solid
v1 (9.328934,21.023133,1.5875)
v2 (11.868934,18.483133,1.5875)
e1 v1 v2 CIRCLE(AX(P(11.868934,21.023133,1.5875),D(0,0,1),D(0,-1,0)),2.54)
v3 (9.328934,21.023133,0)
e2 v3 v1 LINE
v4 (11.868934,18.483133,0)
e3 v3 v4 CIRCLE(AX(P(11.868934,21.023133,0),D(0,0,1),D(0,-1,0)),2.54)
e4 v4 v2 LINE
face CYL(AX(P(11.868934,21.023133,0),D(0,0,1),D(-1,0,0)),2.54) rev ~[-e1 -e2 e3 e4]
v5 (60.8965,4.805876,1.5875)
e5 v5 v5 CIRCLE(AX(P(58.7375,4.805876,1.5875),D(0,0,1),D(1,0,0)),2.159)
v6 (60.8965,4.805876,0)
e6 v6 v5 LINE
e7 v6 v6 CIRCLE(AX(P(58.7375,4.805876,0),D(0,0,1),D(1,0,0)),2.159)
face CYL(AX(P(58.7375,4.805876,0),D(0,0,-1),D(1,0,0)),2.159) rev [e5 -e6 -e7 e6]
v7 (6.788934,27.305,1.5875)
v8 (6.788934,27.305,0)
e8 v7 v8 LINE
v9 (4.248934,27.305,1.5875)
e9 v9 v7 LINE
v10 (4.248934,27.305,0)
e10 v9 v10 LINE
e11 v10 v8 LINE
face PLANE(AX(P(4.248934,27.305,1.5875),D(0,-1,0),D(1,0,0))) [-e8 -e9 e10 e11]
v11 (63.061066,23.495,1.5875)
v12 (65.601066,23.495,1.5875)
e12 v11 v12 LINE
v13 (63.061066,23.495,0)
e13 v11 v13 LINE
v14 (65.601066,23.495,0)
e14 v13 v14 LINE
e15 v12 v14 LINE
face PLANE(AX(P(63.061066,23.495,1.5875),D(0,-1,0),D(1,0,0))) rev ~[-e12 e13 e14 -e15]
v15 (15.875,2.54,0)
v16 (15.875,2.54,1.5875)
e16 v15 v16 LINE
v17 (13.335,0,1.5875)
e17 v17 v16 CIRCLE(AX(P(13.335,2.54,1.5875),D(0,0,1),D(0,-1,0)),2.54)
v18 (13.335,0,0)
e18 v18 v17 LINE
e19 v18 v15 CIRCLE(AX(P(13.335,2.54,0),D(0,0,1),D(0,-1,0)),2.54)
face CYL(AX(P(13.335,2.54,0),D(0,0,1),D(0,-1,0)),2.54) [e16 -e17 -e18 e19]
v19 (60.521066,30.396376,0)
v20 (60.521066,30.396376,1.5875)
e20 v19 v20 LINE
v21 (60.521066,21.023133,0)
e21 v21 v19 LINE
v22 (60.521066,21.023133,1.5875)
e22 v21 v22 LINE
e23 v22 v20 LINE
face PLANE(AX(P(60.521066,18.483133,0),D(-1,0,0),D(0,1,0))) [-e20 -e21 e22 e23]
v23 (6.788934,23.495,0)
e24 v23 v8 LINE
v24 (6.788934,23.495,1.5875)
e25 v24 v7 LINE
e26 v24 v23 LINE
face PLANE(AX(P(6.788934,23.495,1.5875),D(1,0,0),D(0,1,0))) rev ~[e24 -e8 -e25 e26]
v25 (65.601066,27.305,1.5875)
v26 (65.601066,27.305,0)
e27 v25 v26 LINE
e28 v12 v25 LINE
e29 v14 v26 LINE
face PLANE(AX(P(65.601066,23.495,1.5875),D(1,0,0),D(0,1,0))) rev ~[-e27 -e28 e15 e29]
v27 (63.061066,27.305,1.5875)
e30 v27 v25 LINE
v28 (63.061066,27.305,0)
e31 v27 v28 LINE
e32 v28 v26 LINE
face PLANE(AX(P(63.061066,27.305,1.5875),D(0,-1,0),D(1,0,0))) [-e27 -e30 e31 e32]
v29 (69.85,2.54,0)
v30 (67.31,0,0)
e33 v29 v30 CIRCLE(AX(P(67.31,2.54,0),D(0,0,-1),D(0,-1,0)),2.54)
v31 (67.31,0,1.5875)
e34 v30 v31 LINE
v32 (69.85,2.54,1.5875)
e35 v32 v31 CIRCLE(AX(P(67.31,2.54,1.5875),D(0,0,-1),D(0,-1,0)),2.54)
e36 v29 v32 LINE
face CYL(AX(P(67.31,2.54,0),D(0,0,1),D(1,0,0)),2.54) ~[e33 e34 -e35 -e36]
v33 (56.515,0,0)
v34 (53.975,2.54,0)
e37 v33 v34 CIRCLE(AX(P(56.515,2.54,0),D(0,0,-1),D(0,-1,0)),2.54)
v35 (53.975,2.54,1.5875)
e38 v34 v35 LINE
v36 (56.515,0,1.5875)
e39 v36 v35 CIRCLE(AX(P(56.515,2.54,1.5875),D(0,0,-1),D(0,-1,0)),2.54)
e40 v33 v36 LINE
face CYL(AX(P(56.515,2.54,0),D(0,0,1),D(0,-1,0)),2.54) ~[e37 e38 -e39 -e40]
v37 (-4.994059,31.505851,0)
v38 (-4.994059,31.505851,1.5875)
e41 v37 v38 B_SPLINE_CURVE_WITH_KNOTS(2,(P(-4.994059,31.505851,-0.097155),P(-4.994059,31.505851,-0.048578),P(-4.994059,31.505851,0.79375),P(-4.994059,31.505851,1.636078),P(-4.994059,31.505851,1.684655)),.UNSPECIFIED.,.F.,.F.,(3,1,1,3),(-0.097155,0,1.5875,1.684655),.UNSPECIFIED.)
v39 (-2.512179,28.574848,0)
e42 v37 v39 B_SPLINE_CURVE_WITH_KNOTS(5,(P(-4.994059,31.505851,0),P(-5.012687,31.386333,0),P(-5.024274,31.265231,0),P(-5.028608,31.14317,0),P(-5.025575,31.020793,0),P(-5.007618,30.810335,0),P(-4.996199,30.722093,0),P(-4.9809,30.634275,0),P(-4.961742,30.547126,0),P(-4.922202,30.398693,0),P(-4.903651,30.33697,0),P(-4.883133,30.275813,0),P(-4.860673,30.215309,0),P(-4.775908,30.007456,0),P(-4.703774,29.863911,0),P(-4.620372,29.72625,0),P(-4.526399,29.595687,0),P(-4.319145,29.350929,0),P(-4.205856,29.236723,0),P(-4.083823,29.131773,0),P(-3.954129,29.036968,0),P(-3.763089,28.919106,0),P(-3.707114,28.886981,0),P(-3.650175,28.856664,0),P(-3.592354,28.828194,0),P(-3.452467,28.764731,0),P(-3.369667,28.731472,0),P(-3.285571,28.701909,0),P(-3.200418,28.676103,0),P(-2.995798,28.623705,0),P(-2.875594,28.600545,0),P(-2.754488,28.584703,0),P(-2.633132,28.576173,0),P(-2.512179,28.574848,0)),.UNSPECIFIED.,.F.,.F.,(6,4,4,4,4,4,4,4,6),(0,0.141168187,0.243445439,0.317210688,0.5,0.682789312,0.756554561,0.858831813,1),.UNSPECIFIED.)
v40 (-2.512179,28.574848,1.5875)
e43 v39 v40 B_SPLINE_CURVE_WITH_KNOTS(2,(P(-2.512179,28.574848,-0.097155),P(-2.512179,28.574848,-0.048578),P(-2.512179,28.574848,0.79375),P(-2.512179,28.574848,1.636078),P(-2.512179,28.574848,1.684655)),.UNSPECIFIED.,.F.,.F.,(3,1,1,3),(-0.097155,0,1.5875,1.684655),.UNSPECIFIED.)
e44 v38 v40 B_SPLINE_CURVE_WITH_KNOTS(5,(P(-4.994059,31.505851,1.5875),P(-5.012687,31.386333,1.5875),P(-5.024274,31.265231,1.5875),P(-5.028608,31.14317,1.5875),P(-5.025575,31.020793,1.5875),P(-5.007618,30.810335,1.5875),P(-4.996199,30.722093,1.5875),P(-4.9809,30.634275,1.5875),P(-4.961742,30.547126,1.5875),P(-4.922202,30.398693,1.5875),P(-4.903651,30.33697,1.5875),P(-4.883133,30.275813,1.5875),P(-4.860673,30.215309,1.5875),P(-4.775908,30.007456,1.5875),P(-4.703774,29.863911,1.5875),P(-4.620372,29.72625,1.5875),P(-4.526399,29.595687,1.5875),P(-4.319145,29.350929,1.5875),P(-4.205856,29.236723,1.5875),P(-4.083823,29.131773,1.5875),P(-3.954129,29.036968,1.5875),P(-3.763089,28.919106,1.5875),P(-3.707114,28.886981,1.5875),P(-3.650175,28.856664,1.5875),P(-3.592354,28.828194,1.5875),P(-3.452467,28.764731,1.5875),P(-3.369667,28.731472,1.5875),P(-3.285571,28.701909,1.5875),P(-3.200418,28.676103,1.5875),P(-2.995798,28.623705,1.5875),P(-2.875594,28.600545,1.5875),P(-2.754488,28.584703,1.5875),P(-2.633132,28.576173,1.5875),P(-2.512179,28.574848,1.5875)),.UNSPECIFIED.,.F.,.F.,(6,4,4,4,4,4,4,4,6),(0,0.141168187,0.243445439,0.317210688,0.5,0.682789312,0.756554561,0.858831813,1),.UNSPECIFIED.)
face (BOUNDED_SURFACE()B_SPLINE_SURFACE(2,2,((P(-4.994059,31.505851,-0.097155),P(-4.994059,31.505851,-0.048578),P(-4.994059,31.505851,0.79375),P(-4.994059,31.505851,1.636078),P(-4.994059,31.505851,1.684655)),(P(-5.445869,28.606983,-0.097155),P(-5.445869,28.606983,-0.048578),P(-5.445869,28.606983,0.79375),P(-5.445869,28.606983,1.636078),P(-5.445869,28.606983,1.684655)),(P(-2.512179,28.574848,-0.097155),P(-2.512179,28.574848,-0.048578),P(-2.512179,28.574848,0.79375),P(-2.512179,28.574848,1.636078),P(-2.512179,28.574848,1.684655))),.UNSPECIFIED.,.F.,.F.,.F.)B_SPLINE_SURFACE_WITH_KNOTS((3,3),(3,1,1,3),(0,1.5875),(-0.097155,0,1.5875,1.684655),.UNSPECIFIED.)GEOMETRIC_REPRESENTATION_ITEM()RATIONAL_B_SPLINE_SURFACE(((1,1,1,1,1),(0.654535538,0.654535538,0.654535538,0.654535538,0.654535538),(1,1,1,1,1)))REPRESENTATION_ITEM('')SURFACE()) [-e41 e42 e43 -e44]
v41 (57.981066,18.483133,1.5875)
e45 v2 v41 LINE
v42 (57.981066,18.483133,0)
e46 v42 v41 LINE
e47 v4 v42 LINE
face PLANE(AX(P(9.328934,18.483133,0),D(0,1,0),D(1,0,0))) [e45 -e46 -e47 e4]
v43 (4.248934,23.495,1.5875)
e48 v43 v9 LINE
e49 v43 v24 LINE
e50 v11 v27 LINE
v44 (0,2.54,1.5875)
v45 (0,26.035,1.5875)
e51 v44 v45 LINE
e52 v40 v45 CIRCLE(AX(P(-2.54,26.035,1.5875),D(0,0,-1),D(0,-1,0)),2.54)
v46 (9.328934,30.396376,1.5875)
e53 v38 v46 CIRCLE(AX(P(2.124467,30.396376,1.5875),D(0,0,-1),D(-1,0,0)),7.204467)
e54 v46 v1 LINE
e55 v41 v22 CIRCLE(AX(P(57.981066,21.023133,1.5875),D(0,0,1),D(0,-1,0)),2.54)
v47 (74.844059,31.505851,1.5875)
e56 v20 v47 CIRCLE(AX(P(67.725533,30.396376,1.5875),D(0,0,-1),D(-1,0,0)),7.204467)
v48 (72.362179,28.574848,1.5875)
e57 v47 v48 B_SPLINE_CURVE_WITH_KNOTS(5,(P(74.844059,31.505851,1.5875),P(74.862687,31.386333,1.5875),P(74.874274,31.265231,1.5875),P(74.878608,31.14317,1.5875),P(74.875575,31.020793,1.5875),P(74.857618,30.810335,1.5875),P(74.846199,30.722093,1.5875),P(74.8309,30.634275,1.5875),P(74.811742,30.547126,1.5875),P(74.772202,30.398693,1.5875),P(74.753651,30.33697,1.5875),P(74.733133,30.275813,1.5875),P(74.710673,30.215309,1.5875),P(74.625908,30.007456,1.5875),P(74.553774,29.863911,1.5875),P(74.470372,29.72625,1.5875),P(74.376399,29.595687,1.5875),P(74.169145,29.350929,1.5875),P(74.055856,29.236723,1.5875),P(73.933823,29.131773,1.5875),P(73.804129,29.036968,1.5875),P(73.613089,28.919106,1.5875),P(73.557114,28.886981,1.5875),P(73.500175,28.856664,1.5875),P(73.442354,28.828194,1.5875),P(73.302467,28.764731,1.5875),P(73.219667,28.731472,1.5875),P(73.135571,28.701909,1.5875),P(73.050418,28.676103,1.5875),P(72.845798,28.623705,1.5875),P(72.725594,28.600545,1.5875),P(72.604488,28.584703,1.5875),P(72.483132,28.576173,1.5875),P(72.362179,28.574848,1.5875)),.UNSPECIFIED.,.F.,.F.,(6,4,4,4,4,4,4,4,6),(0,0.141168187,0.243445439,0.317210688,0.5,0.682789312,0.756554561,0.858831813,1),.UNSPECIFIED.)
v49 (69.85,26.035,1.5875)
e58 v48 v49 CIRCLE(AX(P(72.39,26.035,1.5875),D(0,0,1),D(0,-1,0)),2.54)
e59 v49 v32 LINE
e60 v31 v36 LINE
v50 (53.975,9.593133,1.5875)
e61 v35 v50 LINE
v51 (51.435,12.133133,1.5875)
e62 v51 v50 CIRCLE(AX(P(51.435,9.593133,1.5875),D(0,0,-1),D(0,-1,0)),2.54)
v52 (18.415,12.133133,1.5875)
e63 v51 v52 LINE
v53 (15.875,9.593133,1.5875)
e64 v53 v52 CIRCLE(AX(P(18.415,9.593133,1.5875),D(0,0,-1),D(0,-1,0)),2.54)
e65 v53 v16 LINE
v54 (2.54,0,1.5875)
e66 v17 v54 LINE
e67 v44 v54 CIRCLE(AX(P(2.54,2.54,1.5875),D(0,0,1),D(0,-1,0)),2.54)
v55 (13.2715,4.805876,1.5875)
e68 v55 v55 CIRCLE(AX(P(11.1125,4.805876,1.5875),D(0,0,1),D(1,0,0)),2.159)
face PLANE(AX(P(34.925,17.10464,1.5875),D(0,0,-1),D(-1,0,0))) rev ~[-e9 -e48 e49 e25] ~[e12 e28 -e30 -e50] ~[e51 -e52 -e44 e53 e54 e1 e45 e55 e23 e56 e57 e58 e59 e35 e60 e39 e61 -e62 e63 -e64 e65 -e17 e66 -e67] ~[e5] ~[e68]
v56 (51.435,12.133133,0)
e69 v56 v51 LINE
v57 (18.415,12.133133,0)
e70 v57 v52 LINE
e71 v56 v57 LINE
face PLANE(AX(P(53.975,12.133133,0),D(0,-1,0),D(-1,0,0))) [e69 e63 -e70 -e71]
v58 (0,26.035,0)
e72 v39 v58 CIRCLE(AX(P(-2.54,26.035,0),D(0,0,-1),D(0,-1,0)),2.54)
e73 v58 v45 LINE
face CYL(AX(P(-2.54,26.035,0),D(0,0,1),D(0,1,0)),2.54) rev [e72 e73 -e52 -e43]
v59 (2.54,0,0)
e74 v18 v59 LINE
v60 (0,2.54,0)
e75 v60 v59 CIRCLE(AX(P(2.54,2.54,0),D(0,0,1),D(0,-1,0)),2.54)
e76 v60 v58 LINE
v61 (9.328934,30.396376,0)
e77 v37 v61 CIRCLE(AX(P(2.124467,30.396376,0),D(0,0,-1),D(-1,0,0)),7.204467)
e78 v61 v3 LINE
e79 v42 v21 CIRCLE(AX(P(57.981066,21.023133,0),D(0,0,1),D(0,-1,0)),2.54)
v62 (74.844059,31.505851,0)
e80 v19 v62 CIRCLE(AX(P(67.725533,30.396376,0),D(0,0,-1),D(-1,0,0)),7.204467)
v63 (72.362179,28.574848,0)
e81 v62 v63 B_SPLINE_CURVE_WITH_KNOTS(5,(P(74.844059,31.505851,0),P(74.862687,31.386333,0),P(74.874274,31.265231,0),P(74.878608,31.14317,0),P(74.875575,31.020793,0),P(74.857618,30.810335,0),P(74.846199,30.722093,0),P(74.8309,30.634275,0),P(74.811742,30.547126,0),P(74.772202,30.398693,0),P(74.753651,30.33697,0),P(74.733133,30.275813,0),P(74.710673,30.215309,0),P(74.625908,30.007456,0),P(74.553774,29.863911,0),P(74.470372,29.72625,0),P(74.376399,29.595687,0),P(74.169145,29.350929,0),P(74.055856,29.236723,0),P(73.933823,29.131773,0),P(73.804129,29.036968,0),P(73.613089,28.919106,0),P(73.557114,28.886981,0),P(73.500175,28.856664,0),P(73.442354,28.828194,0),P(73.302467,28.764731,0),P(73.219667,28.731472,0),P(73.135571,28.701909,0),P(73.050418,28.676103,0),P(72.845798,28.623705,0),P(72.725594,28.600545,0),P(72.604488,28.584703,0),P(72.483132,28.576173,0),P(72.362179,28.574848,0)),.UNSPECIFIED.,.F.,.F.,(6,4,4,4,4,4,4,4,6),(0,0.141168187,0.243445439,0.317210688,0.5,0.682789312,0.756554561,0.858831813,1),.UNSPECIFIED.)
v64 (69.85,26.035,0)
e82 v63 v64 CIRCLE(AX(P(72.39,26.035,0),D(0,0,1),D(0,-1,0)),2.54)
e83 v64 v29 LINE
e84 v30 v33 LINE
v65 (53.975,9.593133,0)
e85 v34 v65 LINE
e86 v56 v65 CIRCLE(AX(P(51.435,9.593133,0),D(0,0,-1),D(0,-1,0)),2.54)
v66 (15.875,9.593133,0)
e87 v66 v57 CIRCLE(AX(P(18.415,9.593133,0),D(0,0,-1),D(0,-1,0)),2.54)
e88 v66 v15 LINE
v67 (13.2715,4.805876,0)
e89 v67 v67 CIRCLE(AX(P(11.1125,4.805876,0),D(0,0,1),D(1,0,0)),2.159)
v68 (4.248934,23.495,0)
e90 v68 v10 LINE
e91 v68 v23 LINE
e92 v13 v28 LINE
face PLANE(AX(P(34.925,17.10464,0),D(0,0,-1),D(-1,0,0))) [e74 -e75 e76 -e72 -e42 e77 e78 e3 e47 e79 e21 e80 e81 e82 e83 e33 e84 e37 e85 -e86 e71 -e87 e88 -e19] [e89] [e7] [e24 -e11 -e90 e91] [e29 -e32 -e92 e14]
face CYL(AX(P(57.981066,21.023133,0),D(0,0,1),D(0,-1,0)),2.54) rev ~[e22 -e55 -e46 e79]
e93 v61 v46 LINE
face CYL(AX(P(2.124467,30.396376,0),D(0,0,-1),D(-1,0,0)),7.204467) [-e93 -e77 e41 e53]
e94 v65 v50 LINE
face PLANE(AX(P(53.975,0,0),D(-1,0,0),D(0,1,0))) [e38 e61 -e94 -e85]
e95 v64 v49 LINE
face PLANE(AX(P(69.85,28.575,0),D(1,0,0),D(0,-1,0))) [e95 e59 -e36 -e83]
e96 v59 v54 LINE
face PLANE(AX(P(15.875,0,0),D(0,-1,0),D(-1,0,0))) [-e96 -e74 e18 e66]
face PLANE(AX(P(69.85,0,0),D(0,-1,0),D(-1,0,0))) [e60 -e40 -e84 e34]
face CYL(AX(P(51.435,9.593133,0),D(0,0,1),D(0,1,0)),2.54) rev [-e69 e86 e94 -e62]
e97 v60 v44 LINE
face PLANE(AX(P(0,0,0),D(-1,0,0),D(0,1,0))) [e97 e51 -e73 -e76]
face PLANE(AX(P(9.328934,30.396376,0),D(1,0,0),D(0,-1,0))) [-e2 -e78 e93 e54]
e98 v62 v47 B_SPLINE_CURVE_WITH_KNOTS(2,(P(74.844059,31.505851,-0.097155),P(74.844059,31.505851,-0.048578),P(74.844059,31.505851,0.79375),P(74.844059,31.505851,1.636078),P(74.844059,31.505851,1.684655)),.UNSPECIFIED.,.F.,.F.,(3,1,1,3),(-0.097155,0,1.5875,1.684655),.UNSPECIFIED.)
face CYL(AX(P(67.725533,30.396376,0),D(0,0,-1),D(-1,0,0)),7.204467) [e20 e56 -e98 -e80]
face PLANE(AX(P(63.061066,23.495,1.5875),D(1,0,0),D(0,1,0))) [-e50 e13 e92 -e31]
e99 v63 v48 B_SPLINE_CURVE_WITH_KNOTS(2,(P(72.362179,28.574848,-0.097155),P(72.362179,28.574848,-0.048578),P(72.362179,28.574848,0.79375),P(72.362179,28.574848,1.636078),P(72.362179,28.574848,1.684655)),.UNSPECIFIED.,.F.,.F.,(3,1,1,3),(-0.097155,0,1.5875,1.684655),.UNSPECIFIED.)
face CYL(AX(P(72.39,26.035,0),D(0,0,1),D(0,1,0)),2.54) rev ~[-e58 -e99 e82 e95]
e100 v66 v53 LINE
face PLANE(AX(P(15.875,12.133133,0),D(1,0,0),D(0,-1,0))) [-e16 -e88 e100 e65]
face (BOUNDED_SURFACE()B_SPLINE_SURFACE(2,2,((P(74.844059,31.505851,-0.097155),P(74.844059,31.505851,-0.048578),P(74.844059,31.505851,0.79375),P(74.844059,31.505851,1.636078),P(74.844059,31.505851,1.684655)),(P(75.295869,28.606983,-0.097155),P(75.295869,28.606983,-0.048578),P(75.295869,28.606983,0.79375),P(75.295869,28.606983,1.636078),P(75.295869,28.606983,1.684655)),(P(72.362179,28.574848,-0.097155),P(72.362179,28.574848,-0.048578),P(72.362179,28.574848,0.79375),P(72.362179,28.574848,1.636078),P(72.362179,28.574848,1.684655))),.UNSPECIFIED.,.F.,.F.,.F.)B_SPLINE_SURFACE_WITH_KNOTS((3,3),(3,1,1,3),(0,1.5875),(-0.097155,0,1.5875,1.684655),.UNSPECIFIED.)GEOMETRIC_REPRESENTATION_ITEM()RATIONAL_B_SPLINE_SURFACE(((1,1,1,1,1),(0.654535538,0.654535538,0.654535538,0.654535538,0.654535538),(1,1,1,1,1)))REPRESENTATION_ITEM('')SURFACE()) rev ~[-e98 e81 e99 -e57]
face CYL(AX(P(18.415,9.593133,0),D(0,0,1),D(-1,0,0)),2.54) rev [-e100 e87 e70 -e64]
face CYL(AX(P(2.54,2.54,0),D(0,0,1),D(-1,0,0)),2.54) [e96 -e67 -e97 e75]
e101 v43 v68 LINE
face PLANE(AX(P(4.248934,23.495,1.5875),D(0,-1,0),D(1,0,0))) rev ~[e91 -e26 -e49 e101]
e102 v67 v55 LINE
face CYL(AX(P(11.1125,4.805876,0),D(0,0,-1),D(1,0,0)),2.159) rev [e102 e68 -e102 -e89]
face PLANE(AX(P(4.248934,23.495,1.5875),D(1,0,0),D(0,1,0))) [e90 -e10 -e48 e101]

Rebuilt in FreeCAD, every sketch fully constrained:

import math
import FreeCAD as App
import Part
import Sketcher
Q = App.Units.Quantity


def edges_at(feature, points):
    """Names of the edges that pass closest to the given points."""
    edges = feature.Shape.Edges
    near = lambda p: min(range(len(edges)), key=lambda i: edges[i].distToShape(Part.Vertex(*p))[0])
    return sorted({f"Edge{near(p) + 1}" for p in points})

doc = App.newDocument("Part")
body = doc.addObject("PartDesign::Body", "Body")

sketch1 = body.newObject("Sketcher::SketchObject", "Sketch")
sketch1.AttachmentSupport = (doc.getObject("XY_Plane"), [""])
sketch1.MapMode = "FlatFace"
sketch1.addGeometry([
    Part.LineSegment(App.Vector(9.3, 18.5, 0), App.Vector(9.3, 30.4, 0)),
    Part.ArcOfCircle(Part.Circle(App.Vector(2.1, 30.4, 0), App.Vector(0, 0, 1), 7.2), math.radians(0), math.radians(180)),
    Part.LineSegment(App.Vector(-5.1, 30.4, 0), App.Vector(-5.1, 28.6, 0)),
    Part.LineSegment(App.Vector(-5.1, 28.6, 0), App.Vector(0, 28.6, 0)),
    Part.LineSegment(App.Vector(0, 28.6, 0), App.Vector(0, 0, 0)),
    Part.LineSegment(App.Vector(0, 0, 0), App.Vector(15.9, 0, 0)),
    Part.LineSegment(App.Vector(15.9, 0, 0), App.Vector(15.9, 12.1, 0)),
    Part.LineSegment(App.Vector(15.9, 12.1, 0), App.Vector(54, 12.1, 0)),
    Part.LineSegment(App.Vector(54, 12.1, 0), App.Vector(54, 0, 0)),
    Part.LineSegment(App.Vector(54, 0, 0), App.Vector(69.8, 0, 0)),
    Part.LineSegment(App.Vector(69.8, 0, 0), App.Vector(69.8, 28.6, 0)),
    Part.LineSegment(App.Vector(69.8, 28.6, 0), App.Vector(74.9, 28.6, 0)),
    Part.LineSegment(App.Vector(74.9, 28.6, 0), App.Vector(74.9, 30.4, 0)),
    Part.ArcOfCircle(Part.Circle(App.Vector(67.7, 30.4, 0), App.Vector(0, 0, 1), 7.2), math.radians(0), math.radians(180)),
    Part.LineSegment(App.Vector(60.5, 30.4, 0), App.Vector(60.5, 18.5, 0)),
    Part.LineSegment(App.Vector(60.5, 18.5, 0), App.Vector(9.3, 18.5, 0)),
    Part.Circle(App.Vector(58.7, 4.8, 0), App.Vector(0, 0, 1), 2.2),
    Part.Circle(App.Vector(11.1, 4.8, 0), App.Vector(0, 0, 1), 2.2),
], False)
sketch1.addConstraint([
    Sketcher.Constraint("Tangent", 0, 2, 1, 1),
    Sketcher.Constraint("Tangent", 1, 2, 2, 1),
    Sketcher.Constraint("Coincident", 2, 2, 3, 1),
    Sketcher.Constraint("Coincident", 3, 2, 4, 1),
    Sketcher.Constraint("Coincident", 4, 2, 5, 1),
    Sketcher.Constraint("Coincident", 5, 2, 6, 1),
    Sketcher.Constraint("Coincident", 6, 2, 7, 1),
    Sketcher.Constraint("Coincident", 7, 2, 8, 1),
    Sketcher.Constraint("Coincident", 8, 2, 9, 1),
    Sketcher.Constraint("Coincident", 9, 2, 10, 1),
    Sketcher.Constraint("Coincident", 10, 2, 11, 1),
    Sketcher.Constraint("Coincident", 11, 2, 12, 1),
    Sketcher.Constraint("Tangent", 12, 2, 13, 1),
    Sketcher.Constraint("Tangent", 13, 2, 14, 1),
    Sketcher.Constraint("Coincident", 14, 2, 15, 1),
    Sketcher.Constraint("Coincident", 15, 2, 0, 1),
    Sketcher.Constraint("Vertical", 0),
    Sketcher.Constraint("Vertical", 2),
    Sketcher.Constraint("Horizontal", 3),
    Sketcher.Constraint("Vertical", 4),
    Sketcher.Constraint("Horizontal", 5),
    Sketcher.Constraint("Vertical", 6),
    Sketcher.Constraint("Horizontal", 7),
    Sketcher.Constraint("Vertical", 8),
    Sketcher.Constraint("Horizontal", 9),
    Sketcher.Constraint("Vertical", 10),
    Sketcher.Constraint("Horizontal", 11),
    Sketcher.Constraint("Vertical", 12),
    Sketcher.Constraint("Vertical", 14),
    Sketcher.Constraint("Horizontal", 15),
    Sketcher.Constraint("Coincident", 4, 2, -1, 1),
    Sketcher.Constraint("Equal", 1, 13),
    Sketcher.Constraint("Equal", 16, 17),
    Sketcher.Constraint("PointOnObject", 8, 2, -1),
    Sketcher.Constraint("Horizontal", 1, 3, 13, 3),
    Sketcher.Constraint("Horizontal", 16, 3, 17, 3),
    Sketcher.Constraint("Horizontal", 3, 2, 10, 2),
    Sketcher.Constraint("Equal", 5, 9),
    Sketcher.Constraint("Equal", 3, 11),
    Sketcher.Constraint("Diameter", 16, Q("0.17 in")),
    Sketcher.Constraint("DistanceX", 3, 1, 3, 2, Q("0.2 in")),
    Sketcher.Constraint("DistanceX", 7, 1, 7, 2, Q("1.5 in")),
    Sketcher.Constraint("DistanceX", 5, 1, 5, 2, Q("0.625 in")),
    Sketcher.Constraint("DistanceY", 4, 2, 4, 1, Q("1.125 in")),
    Sketcher.Constraint("DistanceY", 7, 2, 14, 2, Q("0.25 in")),
    Sketcher.Constraint("DistanceX", -1, 1, 16, 3, Q("2.3125 in")),
    Sketcher.Constraint("DistanceX", -1, 1, 17, 3, Q("0.4375 in")),
    Sketcher.Constraint("Radius", 1, 7.204467),
    Sketcher.Constraint("DistanceY", 16, 3, 13, 3, Q("1.0075 in")),
    Sketcher.Constraint("DistanceY", 0, 1, 0, 2, 11.913243),
    Sketcher.Constraint("DistanceY", 2, 2, 2, 1, 1.821376),
])
pad1 = body.newObject("PartDesign::Pad", "Pad")
pad1.Profile = sketch1
pad1.Length = Q("0.0625 in")

sketch2 = body.newObject("Sketcher::SketchObject", "Sketch001")
sketch2.AttachmentSupport = (doc.getObject("XY_Plane"), [""])
sketch2.MapMode = "FlatFace"
sketch2.AttachmentOffset = App.Placement(App.Vector(0, 0, 0.0625 * 25.4), App.Rotation())
sketch2.addGeometry([
    Part.LineSegment(App.Vector(4.2, 27.3, 0), App.Vector(4.2, 23.5, 0)),
    Part.LineSegment(App.Vector(4.2, 23.5, 0), App.Vector(6.8, 23.5, 0)),
    Part.LineSegment(App.Vector(6.8, 23.5, 0), App.Vector(6.8, 27.3, 0)),
    Part.LineSegment(App.Vector(6.8, 27.3, 0), App.Vector(4.2, 27.3, 0)),
    Part.LineSegment(App.Vector(63.1, 27.3, 0), App.Vector(63.1, 23.5, 0)),
    Part.LineSegment(App.Vector(63.1, 23.5, 0), App.Vector(65.6, 23.5, 0)),
    Part.LineSegment(App.Vector(65.6, 23.5, 0), App.Vector(65.6, 27.3, 0)),
    Part.LineSegment(App.Vector(65.6, 27.3, 0), App.Vector(63.1, 27.3, 0)),
], False)
sketch2.addConstraint([
    Sketcher.Constraint("Coincident", 0, 2, 1, 1),
    Sketcher.Constraint("Coincident", 1, 2, 2, 1),
    Sketcher.Constraint("Coincident", 2, 2, 3, 1),
    Sketcher.Constraint("Coincident", 3, 2, 0, 1),
    Sketcher.Constraint("Coincident", 4, 2, 5, 1),
    Sketcher.Constraint("Coincident", 5, 2, 6, 1),
    Sketcher.Constraint("Coincident", 6, 2, 7, 1),
    Sketcher.Constraint("Coincident", 7, 2, 4, 1),
    Sketcher.Constraint("Vertical", 0),
    Sketcher.Constraint("Horizontal", 1),
    Sketcher.Constraint("Vertical", 2),
    Sketcher.Constraint("Horizontal", 3),
    Sketcher.Constraint("Vertical", 4),
    Sketcher.Constraint("Horizontal", 5),
    Sketcher.Constraint("Vertical", 6),
    Sketcher.Constraint("Horizontal", 7),
    Sketcher.Constraint("Horizontal", 1, 2, 4, 2),
    Sketcher.Constraint("Horizontal", 3, 2, 6, 2),
    Sketcher.Constraint("Equal", 3, 5),
    Sketcher.Constraint("DistanceX", 1, 1, 1, 2, Q("0.1 in")),
    Sketcher.Constraint("DistanceY", 0, 2, 0, 1, Q("0.15 in")),
    Sketcher.Constraint("DistanceY", -1, 1, 0, 2, Q("0.925 in")),
    Sketcher.Constraint("DistanceX", 1, 2, 4, 2, 56.272131),
    Sketcher.Constraint("DistanceX", -1, 1, 0, 2, 4.248934),
])
pocket1 = body.newObject("PartDesign::Pocket", "Pocket")
pocket1.Profile = sketch2
pocket1.Length = Q("0.0625 in")
doc.recompute()

fillet = body.newObject("PartDesign::Fillet", "Fillet")
fillet.Base = (pocket1, edges_at(pocket1, [
    (60.521, 18.483, 0.794),
    (69.85, 28.575, 0.794),
    (69.85, 0, 0.794),
    (53.975, 0, 0.794),
    (53.975, 12.133, 0.794),
    (15.875, 12.133, 0.794),
    (15.875, 0, 0.794),
    (0, 0, 0.794),
    (0, 28.575, 0.794),
    (9.329, 18.483, 0.794),
]))
fillet.Radius = Q("0.1 in")
doc.recompute()

fillet2 = body.newObject("PartDesign::Fillet", "Fillet001")
fillet2.Base = (fillet, edges_at(fillet, [(-5.08, 28.575, 0.794), (74.93, 28.575, 0.794)]))
fillet2.Radius = Q("0.1 in")

doc.recompute()
